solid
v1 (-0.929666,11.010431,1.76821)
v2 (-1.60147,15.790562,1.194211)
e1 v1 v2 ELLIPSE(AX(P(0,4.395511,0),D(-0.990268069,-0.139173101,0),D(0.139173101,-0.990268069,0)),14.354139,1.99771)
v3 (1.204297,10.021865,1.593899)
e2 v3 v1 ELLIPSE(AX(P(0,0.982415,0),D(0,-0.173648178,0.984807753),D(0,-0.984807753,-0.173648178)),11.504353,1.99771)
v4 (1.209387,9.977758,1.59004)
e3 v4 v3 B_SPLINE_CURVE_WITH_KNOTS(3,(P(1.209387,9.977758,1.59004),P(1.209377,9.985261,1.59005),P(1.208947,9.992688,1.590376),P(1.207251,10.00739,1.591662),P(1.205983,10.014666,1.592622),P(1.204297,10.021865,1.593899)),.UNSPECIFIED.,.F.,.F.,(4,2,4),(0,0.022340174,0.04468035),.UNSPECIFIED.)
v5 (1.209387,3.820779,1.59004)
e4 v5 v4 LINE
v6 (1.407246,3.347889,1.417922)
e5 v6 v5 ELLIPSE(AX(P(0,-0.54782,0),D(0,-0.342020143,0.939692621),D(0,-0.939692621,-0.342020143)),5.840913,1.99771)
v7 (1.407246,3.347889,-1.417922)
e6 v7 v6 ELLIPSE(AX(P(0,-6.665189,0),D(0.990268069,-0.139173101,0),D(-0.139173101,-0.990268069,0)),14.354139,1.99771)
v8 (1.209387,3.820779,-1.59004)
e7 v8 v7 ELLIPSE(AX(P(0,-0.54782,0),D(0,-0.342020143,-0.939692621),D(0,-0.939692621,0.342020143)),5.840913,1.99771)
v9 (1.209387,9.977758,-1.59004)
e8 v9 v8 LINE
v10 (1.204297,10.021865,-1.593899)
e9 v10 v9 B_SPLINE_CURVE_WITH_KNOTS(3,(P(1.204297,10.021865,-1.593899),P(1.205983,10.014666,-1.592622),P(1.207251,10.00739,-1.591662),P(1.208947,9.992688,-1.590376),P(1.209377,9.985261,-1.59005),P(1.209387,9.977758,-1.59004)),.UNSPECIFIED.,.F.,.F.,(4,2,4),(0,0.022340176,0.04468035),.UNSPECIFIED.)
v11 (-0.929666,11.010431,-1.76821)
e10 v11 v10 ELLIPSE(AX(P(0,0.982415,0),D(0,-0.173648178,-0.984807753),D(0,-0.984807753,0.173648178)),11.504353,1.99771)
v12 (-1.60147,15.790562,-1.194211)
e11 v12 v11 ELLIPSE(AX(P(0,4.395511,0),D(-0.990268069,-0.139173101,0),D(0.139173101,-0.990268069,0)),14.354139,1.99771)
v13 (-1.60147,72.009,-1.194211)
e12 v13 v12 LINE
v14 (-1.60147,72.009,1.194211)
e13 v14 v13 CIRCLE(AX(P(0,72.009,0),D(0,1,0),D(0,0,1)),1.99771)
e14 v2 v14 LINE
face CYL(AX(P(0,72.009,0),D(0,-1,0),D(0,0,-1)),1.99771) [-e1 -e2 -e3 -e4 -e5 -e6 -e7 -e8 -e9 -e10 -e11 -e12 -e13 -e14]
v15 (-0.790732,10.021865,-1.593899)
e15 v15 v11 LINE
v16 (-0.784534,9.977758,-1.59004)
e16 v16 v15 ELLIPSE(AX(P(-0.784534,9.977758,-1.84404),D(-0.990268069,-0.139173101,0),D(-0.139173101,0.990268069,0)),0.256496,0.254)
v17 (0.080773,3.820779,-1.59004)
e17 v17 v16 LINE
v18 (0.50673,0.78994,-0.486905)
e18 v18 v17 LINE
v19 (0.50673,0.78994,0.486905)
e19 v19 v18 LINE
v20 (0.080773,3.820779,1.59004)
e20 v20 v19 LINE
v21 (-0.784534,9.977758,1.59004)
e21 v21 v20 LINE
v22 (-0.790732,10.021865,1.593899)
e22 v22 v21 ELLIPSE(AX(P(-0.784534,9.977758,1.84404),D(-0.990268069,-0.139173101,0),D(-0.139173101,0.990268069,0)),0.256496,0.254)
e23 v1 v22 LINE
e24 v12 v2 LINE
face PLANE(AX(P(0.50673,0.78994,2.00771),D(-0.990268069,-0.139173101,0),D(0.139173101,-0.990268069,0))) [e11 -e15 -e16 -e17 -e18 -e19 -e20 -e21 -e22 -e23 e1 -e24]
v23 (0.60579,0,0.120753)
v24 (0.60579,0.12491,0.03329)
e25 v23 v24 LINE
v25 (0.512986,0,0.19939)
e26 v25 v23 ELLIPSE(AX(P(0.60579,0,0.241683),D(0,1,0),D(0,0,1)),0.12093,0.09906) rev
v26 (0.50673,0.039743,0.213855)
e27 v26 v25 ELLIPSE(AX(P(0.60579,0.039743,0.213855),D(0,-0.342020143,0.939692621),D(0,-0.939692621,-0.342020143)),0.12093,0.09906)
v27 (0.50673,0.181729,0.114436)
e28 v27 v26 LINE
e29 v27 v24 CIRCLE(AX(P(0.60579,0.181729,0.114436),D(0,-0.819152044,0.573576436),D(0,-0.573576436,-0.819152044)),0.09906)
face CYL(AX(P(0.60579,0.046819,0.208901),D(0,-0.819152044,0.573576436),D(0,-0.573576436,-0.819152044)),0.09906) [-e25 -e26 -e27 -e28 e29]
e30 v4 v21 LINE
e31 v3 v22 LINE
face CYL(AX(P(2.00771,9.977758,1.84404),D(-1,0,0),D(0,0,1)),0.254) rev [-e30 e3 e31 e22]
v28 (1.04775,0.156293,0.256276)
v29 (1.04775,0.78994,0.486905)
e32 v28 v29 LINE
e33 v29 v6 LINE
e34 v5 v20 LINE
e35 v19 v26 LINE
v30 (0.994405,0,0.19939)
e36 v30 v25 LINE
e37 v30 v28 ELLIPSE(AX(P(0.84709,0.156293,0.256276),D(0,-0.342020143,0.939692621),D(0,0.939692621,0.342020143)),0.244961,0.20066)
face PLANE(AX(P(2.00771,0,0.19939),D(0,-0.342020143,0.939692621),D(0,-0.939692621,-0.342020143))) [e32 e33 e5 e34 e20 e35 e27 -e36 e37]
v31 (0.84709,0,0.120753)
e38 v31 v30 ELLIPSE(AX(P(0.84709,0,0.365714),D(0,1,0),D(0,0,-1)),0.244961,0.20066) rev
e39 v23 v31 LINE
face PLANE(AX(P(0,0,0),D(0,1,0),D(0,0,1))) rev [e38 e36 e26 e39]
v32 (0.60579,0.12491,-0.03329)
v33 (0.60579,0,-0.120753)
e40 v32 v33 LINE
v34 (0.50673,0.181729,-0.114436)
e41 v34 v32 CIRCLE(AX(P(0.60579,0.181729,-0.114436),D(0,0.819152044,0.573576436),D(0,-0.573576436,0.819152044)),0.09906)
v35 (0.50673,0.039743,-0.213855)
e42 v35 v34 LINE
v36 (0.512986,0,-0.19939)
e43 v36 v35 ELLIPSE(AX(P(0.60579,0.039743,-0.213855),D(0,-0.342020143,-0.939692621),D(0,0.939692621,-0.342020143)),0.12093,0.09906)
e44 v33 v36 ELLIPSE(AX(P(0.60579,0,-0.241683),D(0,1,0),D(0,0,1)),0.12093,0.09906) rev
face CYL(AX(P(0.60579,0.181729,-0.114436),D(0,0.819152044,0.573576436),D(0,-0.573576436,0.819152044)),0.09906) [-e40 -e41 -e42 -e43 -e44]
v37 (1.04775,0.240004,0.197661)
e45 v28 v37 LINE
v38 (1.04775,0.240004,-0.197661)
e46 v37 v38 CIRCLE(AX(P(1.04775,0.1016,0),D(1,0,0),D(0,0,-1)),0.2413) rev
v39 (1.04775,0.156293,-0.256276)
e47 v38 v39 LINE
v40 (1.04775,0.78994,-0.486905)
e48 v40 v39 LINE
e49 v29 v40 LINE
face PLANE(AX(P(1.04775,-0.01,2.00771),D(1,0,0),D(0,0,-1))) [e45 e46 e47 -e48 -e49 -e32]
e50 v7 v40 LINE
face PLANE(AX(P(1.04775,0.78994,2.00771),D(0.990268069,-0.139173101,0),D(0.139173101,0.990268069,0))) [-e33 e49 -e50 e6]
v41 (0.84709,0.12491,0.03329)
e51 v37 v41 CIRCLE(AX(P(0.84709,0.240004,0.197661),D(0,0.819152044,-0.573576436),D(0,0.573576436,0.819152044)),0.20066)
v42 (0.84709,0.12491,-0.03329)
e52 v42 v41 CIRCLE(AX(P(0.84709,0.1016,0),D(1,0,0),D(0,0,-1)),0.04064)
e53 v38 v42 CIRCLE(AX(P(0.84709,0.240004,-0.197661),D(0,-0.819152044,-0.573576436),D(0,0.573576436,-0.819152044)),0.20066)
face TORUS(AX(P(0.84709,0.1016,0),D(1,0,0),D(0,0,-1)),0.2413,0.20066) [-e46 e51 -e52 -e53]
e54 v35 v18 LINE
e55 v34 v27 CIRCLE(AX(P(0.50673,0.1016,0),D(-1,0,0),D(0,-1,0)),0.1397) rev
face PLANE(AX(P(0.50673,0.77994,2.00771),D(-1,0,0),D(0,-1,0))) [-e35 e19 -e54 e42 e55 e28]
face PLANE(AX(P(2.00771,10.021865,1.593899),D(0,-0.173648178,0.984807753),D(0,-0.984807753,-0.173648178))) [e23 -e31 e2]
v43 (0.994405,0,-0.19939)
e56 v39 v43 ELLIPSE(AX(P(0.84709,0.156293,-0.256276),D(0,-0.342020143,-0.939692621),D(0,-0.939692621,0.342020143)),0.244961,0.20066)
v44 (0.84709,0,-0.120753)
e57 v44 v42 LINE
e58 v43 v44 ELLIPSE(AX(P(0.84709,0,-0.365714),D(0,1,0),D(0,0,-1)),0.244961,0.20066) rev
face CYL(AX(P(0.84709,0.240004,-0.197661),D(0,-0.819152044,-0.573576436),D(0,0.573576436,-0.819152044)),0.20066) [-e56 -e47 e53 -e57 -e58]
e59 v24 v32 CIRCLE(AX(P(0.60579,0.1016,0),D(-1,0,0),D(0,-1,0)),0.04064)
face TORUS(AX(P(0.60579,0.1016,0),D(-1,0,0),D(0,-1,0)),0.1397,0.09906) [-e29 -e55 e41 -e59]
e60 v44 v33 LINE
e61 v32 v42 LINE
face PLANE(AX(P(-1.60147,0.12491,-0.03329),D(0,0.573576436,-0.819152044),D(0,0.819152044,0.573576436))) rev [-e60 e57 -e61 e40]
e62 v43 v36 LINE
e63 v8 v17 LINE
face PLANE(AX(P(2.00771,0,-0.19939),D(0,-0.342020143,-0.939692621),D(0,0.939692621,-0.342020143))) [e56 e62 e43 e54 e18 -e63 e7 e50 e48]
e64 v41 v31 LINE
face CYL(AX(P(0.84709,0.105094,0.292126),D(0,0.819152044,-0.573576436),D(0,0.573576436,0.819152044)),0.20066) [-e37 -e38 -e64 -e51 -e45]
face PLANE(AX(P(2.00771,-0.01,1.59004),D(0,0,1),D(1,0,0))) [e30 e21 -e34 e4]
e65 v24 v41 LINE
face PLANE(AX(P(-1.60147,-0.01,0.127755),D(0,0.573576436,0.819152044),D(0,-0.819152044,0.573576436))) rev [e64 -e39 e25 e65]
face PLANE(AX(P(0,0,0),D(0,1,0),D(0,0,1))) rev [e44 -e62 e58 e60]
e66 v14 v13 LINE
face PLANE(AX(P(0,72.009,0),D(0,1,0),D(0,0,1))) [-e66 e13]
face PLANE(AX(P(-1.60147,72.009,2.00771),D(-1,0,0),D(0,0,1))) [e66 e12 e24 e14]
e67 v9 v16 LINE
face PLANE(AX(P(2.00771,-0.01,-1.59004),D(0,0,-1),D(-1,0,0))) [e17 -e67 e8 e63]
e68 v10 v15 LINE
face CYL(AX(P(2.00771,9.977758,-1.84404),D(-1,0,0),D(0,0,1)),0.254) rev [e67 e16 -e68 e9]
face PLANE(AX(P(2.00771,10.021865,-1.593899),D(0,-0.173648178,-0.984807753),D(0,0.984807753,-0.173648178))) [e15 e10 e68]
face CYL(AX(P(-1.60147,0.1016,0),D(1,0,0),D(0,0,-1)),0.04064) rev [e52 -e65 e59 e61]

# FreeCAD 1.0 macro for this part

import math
import FreeCAD as App
import Part
import Sketcher
from FreeCAD import Vector
Q = App.Units.Quantity


def edges_at(feature, points):
    """Names of the edges that pass closest to the given points."""
    edges = feature.Shape.Edges
    near = lambda p: min(range(len(edges)), key=lambda i: edges[i].distToShape(Part.Vertex(*p))[0])
    return sorted({f"Edge{near(p) + 1}" for p in points})


def add_polygon(sketch, points):
    """Adds a closed chain of lines whose ends are joined by coincident constraints."""
    first, n = sketch.GeometryCount, len(points)
    for a, b in zip(points, points[1:] + points[:1]):
        sketch.addGeometry(Part.LineSegment(App.Vector(*a, 0), App.Vector(*b, 0)), False)
    for i in range(n):
        sketch.addConstraint(Sketcher.Constraint("Coincident", first + i, 2, first + (i + 1) % n, 1))

doc = App.newDocument("Part")
body = doc.addObject("PartDesign::Body", "Body")

# Sketch on XZ plane
sketch1 = body.newObject("Sketcher::SketchObject", "Sketch")
sketch1.AttachmentSupport = (doc.getObject("XZ_Plane"), [""])
sketch1.MapMode = "FlatFace"
sketch1.addGeometry(Part.Circle(Vector(0, 0, 0), Vector(0, 0, 1), 2), False)
sketch1.addConstraint(Sketcher.Constraint("Coincident", 0, 3, -1, 1))
sketch1.addConstraint(Sketcher.Constraint("Diameter", 0, Q("0.1573 in")))
pad1 = body.newObject("PartDesign::Pad", "Pad")
pad1.Profile = sketch1
pad1.Length = Q("2.835 in")
pad1.Reversed = True

# Sketch on XZ plane
sketch2 = body.newObject("Sketcher::SketchObject", "Sketch001")
sketch2.AttachmentSupport = (doc.getObject("XZ_Plane"), [""])
sketch2.MapMode = "FlatFace"
add_polygon(sketch2, [(-5.6, -2), (-5.6, 2), (-1.6, 2), (-1.6, -2)])  # lines 0-3
sketch2.addConstraint(Sketcher.Constraint("Vertical", 0))
sketch2.addConstraint(Sketcher.Constraint("Horizontal", 1))
sketch2.addConstraint(Sketcher.Constraint("Vertical", 2))
sketch2.addConstraint(Sketcher.Constraint("Horizontal", 3))
sketch2.addConstraint(Sketcher.Constraint("Equal", 3, 0))
sketch2.addConstraint(Sketcher.Constraint("DistanceX", 1, 1, 1, 2, 4.01542))
sketch2.addConstraint(Sketcher.Constraint("DistanceX", 0, 2, -1, 1, 5.61689))
sketch2.addConstraint(Sketcher.Constraint("DistanceY", -1, 1, 0, 2, 2.00771))
pocket1 = body.newObject("PartDesign::Pocket", "Pocket")
pocket1.Profile = sketch2
pocket1.Type = "ThroughAll"
body2 = doc.addObject("PartDesign::Body", "Body001")

# Sketch on YZ plane
sketch3 = body2.newObject("Sketcher::SketchObject", "Sketch002")
sketch3.AttachmentSupport = (doc.getObject("YZ_Plane001"), [""])
sketch3.MapMode = "FlatFace"
sketch3.addGeometry(Part.LineSegment(Vector(-0.01, 1.59, 0), Vector(9.978, 1.59, 0)), False)
sketch3.addGeometry(Part.ArcOfCircle(Part.Circle(Vector(9.978, 1.844, 0), Vector(0, 0, 1), 0.254), math.radians(-90), math.radians(-80)), False)
sketch3.addGeometry(Part.LineSegment(Vector(10.022, 1.594, 0), Vector(12.425, 2.018, 0)), False)
sketch3.addGeometry(Part.LineSegment(Vector(12.425, 2.018, 0), Vector(-0.01, 2.008, 0)), False)
sketch3.addGeometry(Part.LineSegment(Vector(-0.01, 2.008, 0), Vector(-0.01, 1.59, 0)), False)
sketch3.addConstraint(Sketcher.Constraint("Tangent", 0, 2, 1, 1))
sketch3.addConstraint(Sketcher.Constraint("Tangent", 1, 2, 2, 1))
sketch3.addConstraint(Sketcher.Constraint("Coincident", 2, 2, 3, 1))
sketch3.addConstraint(Sketcher.Constraint("Coincident", 3, 2, 4, 1))
sketch3.addConstraint(Sketcher.Constraint("Coincident", 4, 2, 0, 1))
sketch3.addConstraint(Sketcher.Constraint("Horizontal", 0))
sketch3.addConstraint(Sketcher.Constraint("Vertical", 4))
sketch3.addConstraint(Sketcher.Constraint("Radius", 1, Q("0.01 in")))
sketch3.addConstraint(Sketcher.Constraint("Angle", 2, Q("10 deg")))
sketch3.addConstraint(Sketcher.Constraint("DistanceY", -1, 1, 1, 3, Q("0.0726 in")))
sketch3.addConstraint(Sketcher.Constraint("DistanceY", 4, 2, 4, 1, 0.41767))
sketch3.addConstraint(Sketcher.Constraint("DistanceX", 3, 2, -1, 1, 0.01))
sketch3.addConstraint(Sketcher.Constraint("DistanceY", 3, 2, 2, 2, 0.01))
sketch3.addConstraint(Sketcher.Constraint("Distance", 3, 12.435421))
pad2 = body2.newObject("PartDesign::Pad", "Pad001")
pad2.Profile = sketch3
pad2.Length = 4.01542
pad2.Midplane = True
body3 = doc.addObject("PartDesign::Body", "Body002")
body3.AllowCompound = True

# Sketch on YZ plane
sketch4 = body3.newObject("Sketcher::SketchObject", "Sketch003")
sketch4.AttachmentSupport = (doc.getObject("YZ_Plane002"), [""])
sketch4.MapMode = "FlatFace"
sketch4.addGeometry(Part.LineSegment(Vector(9.978, -1.59, 0), Vector(-0.01, -1.59, 0)), False)
sketch4.addGeometry(Part.LineSegment(Vector(-0.01, -1.59, 0), Vector(-0.01, -2.008, 0)), False)
sketch4.addGeometry(Part.LineSegment(Vector(-0.01, -2.008, 0), Vector(12.425, -2.018, 0)), False)
sketch4.addGeometry(Part.LineSegment(Vector(12.425, -2.018, 0), Vector(10.022, -1.594, 0)), False)
sketch4.addGeometry(Part.ArcOfCircle(Part.Circle(Vector(9.978, -1.844, 0), Vector(0, 0, 1), 0.254), math.radians(80), math.radians(90)), False)
sketch4.addConstraint(Sketcher.Constraint("Coincident", 0, 2, 1, 1))
sketch4.addConstraint(Sketcher.Constraint("Coincident", 1, 2, 2, 1))
sketch4.addConstraint(Sketcher.Constraint("Coincident", 2, 2, 3, 1))
sketch4.addConstraint(Sketcher.Constraint("Tangent", 3, 2, 4, 1))
sketch4.addConstraint(Sketcher.Constraint("Tangent", 4, 2, 0, 1))
sketch4.addConstraint(Sketcher.Constraint("Horizontal", 0))
sketch4.addConstraint(Sketcher.Constraint("Vertical", 1))
sketch4.addConstraint(Sketcher.Constraint("Radius", 4, Q("0.01 in")))
sketch4.addConstraint(Sketcher.Constraint("Angle", 3, Q("170 deg")))
sketch4.addConstraint(Sketcher.Constraint("DistanceY", 4, 3, -1, 1, Q("0.0726 in")))
sketch4.addConstraint(Sketcher.Constraint("DistanceY", 1, 2, 1, 1, 0.41767))
sketch4.addConstraint(Sketcher.Constraint("DistanceX", 0, 2, -1, 1, 0.01))
sketch4.addConstraint(Sketcher.Constraint("DistanceY", 2, 2, 1, 2, 0.01))
sketch4.addConstraint(Sketcher.Constraint("Distance", 2, 12.435421))
pad3 = body3.newObject("PartDesign::Pad", "Pad002")
pad3.Profile = sketch4
pad3.Length = 4.01542
pad3.Midplane = True
doc.recompute()

boolean = body3.newObject("PartDesign::Boolean", "Boolean")
boolean.Type = "Fuse"
boolean.addObjects([body2])

# Sketch on YZ plane
sketch5 = body3.newObject("Sketcher::SketchObject", "Sketch004")
sketch5.AttachmentSupport = (doc.getObject("YZ_Plane002"), [""])
sketch5.MapMode = "FlatFace"
add_polygon(sketch5, [(0, -0.2), (0, 0.2), (4.97, 2.01), (-0.03, 2.01), (-0.03, -2.01), (4.97, -2.01)])  # lines 0-5
sketch5.addConstraint(Sketcher.Constraint("Vertical", 0))
sketch5.addConstraint(Sketcher.Constraint("Horizontal", 2))
sketch5.addConstraint(Sketcher.Constraint("Vertical", 3))
sketch5.addConstraint(Sketcher.Constraint("Horizontal", 4))
sketch5.addConstraint(Sketcher.Constraint("Symmetric", 0, 2, 5, 2, -1, 1))
sketch5.addConstraint(Sketcher.Constraint("Symmetric", 1, 2, 4, 2, -1))
sketch5.addConstraint(Sketcher.Constraint("Angle", 1, Q("20 deg")))
sketch5.addConstraint(Sketcher.Constraint("DistanceY", 0, 1, 0, 2, Q("0.0157 in")))
sketch5.addConstraint(Sketcher.Constraint("DistanceX", 2, 2, 2, 1, 4.998318))
sketch5.addConstraint(Sketcher.Constraint("DistanceY", 3, 2, 3, 1, 4.01542))
pad4 = body3.newObject("PartDesign::Pad", "Pad003")
pad4.Profile = sketch5
pad4.Length = 4.01542
pad4.Midplane = True

# Sketch on XY plane
sketch6 = body3.newObject("Sketcher::SketchObject", "Sketch005")
sketch6.AttachmentSupport = (doc.getObject("XY_Plane002"), [""])
sketch6.MapMode = "FlatFace"
add_polygon(sketch6, [(1.1, 0.8), (1.1, 0), (2, 0), (2, 0.8)])  # lines 0-3
add_polygon(sketch6, [(-2, 0.8), (-2, 0), (0.5, 0), (0.5, 0.8)])  # lines 4-7
sketch6.addConstraint(Sketcher.Constraint("Vertical", 0))
sketch6.addConstraint(Sketcher.Constraint("Horizontal", 1))
sketch6.addConstraint(Sketcher.Constraint("Vertical", 2))
sketch6.addConstraint(Sketcher.Constraint("Horizontal", 3))
sketch6.addConstraint(Sketcher.Constraint("Vertical", 4))
sketch6.addConstraint(Sketcher.Constraint("Horizontal", 5))
sketch6.addConstraint(Sketcher.Constraint("Vertical", 6))
sketch6.addConstraint(Sketcher.Constraint("Horizontal", 7))
sketch6.addConstraint(Sketcher.Constraint("Horizontal", 1, 2, 4, 2))
sketch6.addConstraint(Sketcher.Constraint("Horizontal", 3, 2, 6, 2))
sketch6.addConstraint(Sketcher.Constraint("DistanceY", 0, 2, 0, 1, Q("0.0311 in")))
sketch6.addConstraint(Sketcher.Constraint("DistanceX", 5, 2, 1, 2, Q("0.0587 in")))
sketch6.addConstraint(Sketcher.Constraint("DistanceX", 1, 1, 1, 2, 0.93996))
sketch6.addConstraint(Sketcher.Constraint("DistanceX", 5, 1, 5, 2, 2.52444))
sketch6.addConstraint(Sketcher.Constraint("DistanceY", 0, 2, -1, 1, 0.01))
sketch6.addConstraint(Sketcher.Constraint("DistanceX", -1, 1, 0, 2, 1.05775))
pad5 = body3.newObject("PartDesign::Pad", "Pad004")
pad5.Profile = sketch6
pad5.Length = 4.01542
pad5.Midplane = True

# Sketch on XY plane
sketch7 = body3.newObject("Sketcher::SketchObject", "Sketch006")
sketch7.AttachmentSupport = (doc.getObject("XY_Plane002"), [""])
sketch7.MapMode = "FlatFace"
add_polygon(sketch7, [(1, 0.8), (1, 0), (2.1, 0), (2.1, 8.5)])  # lines 0-3
add_polygon(sketch7, [(0.5, 0), (0.5, 0.8), (-1.7, 16.7), (-1.7, 0)])  # lines 4-7
sketch7.addConstraint(Sketcher.Constraint("Vertical", 0))
sketch7.addConstraint(Sketcher.Constraint("Horizontal", 1))
sketch7.addConstraint(Sketcher.Constraint("Vertical", 2))
sketch7.addConstraint(Sketcher.Constraint("Vertical", 4))
sketch7.addConstraint(Sketcher.Constraint("Vertical", 6))
sketch7.addConstraint(Sketcher.Constraint("Horizontal", 7))
sketch7.addConstraint(Sketcher.Constraint("Horizontal", 3, 2, 4, 2))
sketch7.addConstraint(Sketcher.Constraint("Horizontal", 1, 2, 6, 2))
sketch7.addConstraint(Sketcher.Constraint("Angle", 3, Q("-98 deg")))
sketch7.addConstraint(Sketcher.Constraint("Angle", 5, Q("98 deg")))
sketch7.addConstraint(Sketcher.Constraint("DistanceX", 7, 1, 7, 2, Q("0.088 in")))
sketch7.addConstraint(Sketcher.Constraint("DistanceX", 1, 1, 1, 2, Q("0.0424 in")))
sketch7.addConstraint(Sketcher.Constraint("DistanceY", -1, 1, 3, 2, Q("0.0311 in")))
sketch7.addConstraint(Sketcher.Constraint("DistanceX", 4, 2, 3, 2, Q("0.0213 in")))
sketch7.addConstraint(Sketcher.Constraint("DistanceY", 0, 2, 0, 1, 0.79994))
sketch7.addConstraint(Sketcher.Constraint("DistanceX", -1, 1, 0, 2, 1.04775))
pad6 = body3.newObject("PartDesign::Pad", "Pad005")
pad6.Profile = sketch7
pad6.Length = 4.01542
pad6.Midplane = True
doc.recompute()

boolean2 = body.newObject("PartDesign::Boolean", "Boolean001")
boolean2.Type = "Cut"
boolean2.addObjects([body3])

# Sketch on YZ plane
sketch8 = body.newObject("Sketcher::SketchObject", "Sketch007")
sketch8.AttachmentSupport = (doc.getObject("YZ_Plane"), [""])
sketch8.MapMode = "FlatFace"
sketch8.AttachmentOffset = App.Placement(Vector(0, 0, -1.60147), App.Rotation())
sketch8.addGeometry(Part.LineSegment(Vector(-0.01, -0.128, 0), Vector(0.125, -0.033, 0)), False)
sketch8.addGeometry(Part.ArcOfCircle(Part.Circle(Vector(0.102, 0, 0), Vector(0, 0, 1), 0.041), math.radians(-55), math.radians(55)), False)
sketch8.addGeometry(Part.LineSegment(Vector(0.125, 0.033, 0), Vector(-0.01, 0.128, 0)), False)
sketch8.addGeometry(Part.LineSegment(Vector(-0.01, 0.128, 0), Vector(-0.01, -0.128, 0)), False)
sketch8.addConstraint(Sketcher.Constraint("Tangent", 0, 2, 1, 1))
sketch8.addConstraint(Sketcher.Constraint("Tangent", 1, 2, 2, 1))
sketch8.addConstraint(Sketcher.Constraint("Coincident", 2, 2, 3, 1))
sketch8.addConstraint(Sketcher.Constraint("Coincident", 3, 2, 0, 1))
sketch8.addConstraint(Sketcher.Constraint("Vertical", 3))
sketch8.addConstraint(Sketcher.Constraint("Symmetric", 0, 2, 1, 2, -1))
sketch8.addConstraint(Sketcher.Constraint("Angle", 0, Q("35 deg")))
sketch8.addConstraint(Sketcher.Constraint("Radius", 1, Q("0.0016 in")))
sketch8.addConstraint(Sketcher.Constraint("DistanceX", -1, 1, 1, 3, Q("0.004 in")))
sketch8.addConstraint(Sketcher.Constraint("DistanceY", 3, 2, 3, 1, 0.255511))

# Sketch on XY plane
sketch9 = body.newObject("Sketcher::SketchObject", "Sketch008")
sketch9.AttachmentSupport = (doc.getObject("XY_Plane"), [""])
sketch9.MapMode = "FlatFace"
sketch9.addGeometry(Part.LineSegment(Vector(-1.6, 0.1, 0), Vector(2, 0.1, 0)), False)
sketch9.addConstraint(Sketcher.Constraint("Horizontal", 0))
sketch9.addConstraint(Sketcher.Constraint("DistanceX", 0, 1, 0, 2, Q("0.1417 in")))
sketch9.addConstraint(Sketcher.Constraint("DistanceY", -1, 1, 0, 1, Q("0.0056 in")))
sketch9.addConstraint(Sketcher.Constraint("DistanceX", 0, 1, -1, 1, 1.60147))
doc.recompute()

subtractivepipe = body.newObject("PartDesign::SubtractivePipe", "SubtractivePipe")
subtractivepipe.Profile = sketch8
subtractivepipe.Spine = (sketch9, ["Edge1"])
doc.recompute()

fillet = body.newObject("PartDesign::Fillet", "Fillet")
fillet.Base = (subtractivepipe, edges_at(subtractivepipe, [(0.507, 0.142, 0), (0.507, 0.062, -0.077), (0.507, 0.062, 0.077)]))
fillet.Radius = Q("0.0039 in")
doc.recompute()

fillet2 = body.newObject("PartDesign::Fillet", "Fillet001")
fillet2.Base = (fillet, edges_at(fillet, [(1.048, 0.062, -0.077), (1.048, 0.062, 0.077), (1.048, 0.142, 0)]))
fillet2.Radius = Q("0.0079 in")

doc.recompute()
